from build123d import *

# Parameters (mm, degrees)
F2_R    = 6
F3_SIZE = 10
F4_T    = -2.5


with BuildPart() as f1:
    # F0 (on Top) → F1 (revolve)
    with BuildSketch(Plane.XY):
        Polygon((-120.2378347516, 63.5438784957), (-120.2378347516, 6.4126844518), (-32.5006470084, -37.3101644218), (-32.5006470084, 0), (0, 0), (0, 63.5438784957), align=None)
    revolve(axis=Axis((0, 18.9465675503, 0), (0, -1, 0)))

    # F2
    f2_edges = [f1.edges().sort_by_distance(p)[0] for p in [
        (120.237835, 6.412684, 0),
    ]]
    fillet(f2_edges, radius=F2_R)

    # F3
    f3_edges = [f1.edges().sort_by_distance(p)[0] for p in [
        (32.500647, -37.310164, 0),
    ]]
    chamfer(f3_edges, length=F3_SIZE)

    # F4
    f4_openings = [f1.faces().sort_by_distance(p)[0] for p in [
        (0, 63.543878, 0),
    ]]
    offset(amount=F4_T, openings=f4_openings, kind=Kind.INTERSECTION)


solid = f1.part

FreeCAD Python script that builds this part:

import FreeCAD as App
import Part
import Sketcher


def edges_at(feature, points):
    """Names of the edges that pass closest to the given points."""
    edges = feature.Shape.Edges
    near = lambda p: min(range(len(edges)), key=lambda i: edges[i].distToShape(Part.Vertex(*p))[0])
    return sorted({f"Edge{near(p) + 1}" for p in points})


def faces_at(feature, points):
    """Names of the faces that lie closest to the given points."""
    faces = feature.Shape.Faces
    near = lambda p: min(range(len(faces)), key=lambda i: faces[i].distToShape(Part.Vertex(*p))[0])
    return sorted({f"Face{near(p) + 1}" for p in points})

doc = App.newDocument("Part")
params = doc.addObject("Spreadsheet::Sheet", "Params")
for row, (alias, value) in enumerate([
    ("revolution_angle", "360 deg"),
    ("fillet_radius", "6 mm"),
    ("chamfer_size", "10 mm"),
    ("thickness_wall", "2.5 mm"),
], start=1):
    params.set(f"A{row}", alias)
    params.set(f"B{row}", "=" + value)
    params.setAlias(f"B{row}", alias)

body = doc.addObject("PartDesign::Body", "Body")

sketch1 = body.newObject("Sketcher::SketchObject", "Sketch")
sketch1.AttachmentSupport = (doc.getObject("XY_Plane"), [""])
sketch1.MapMode = "FlatFace"
sketch1.addGeometry([
    Part.LineSegment(App.Vector(-120, 64, 0), App.Vector(-120, 6, 0)),
    Part.LineSegment(App.Vector(-120, 6, 0), App.Vector(-33, -37, 0)),
    Part.LineSegment(App.Vector(-33, -37, 0), App.Vector(-33, 0, 0)),
    Part.LineSegment(App.Vector(-33, 0, 0), App.Vector(0, 0, 0)),
    Part.LineSegment(App.Vector(0, 0, 0), App.Vector(0, 64, 0)),
    Part.LineSegment(App.Vector(0, 64, 0), App.Vector(-120, 64, 0)),
], False)
sketch1.addConstraint([
    Sketcher.Constraint("Coincident", 0, 2, 1, 1),
    Sketcher.Constraint("Coincident", 1, 2, 2, 1),
    Sketcher.Constraint("Coincident", 2, 2, 3, 1),
    Sketcher.Constraint("Coincident", 3, 2, 4, 1),
    Sketcher.Constraint("Coincident", 4, 2, 5, 1),
    Sketcher.Constraint("Coincident", 5, 2, 0, 1),
    Sketcher.Constraint("Vertical", 0),
    Sketcher.Constraint("Vertical", 2),
    Sketcher.Constraint("Horizontal", 3),
    Sketcher.Constraint("Vertical", 4),
    Sketcher.Constraint("Horizontal", 5),
    Sketcher.Constraint("Coincident", 3, 2, -1, 1),
    Sketcher.Constraint("DistanceY", 4, 1, 4, 2, 63.543878),
    Sketcher.Constraint("DistanceX", 3, 1, 3, 2, 32.500647),
    Sketcher.Constraint("DistanceX", 5, 2, 5, 1, 120.237835),
    Sketcher.Constraint("DistanceY", 0, 2, 0, 1, 57.131194),
    Sketcher.Constraint("DistanceY", 2, 1, 2, 2, 37.310164),
])
revolution = body.newObject("PartDesign::Revolution", "Revolution")
revolution.Profile = sketch1
revolution.ReferenceAxis = (sketch1, ["V_Axis"])
revolution.setExpression("Angle", "Params.revolution_angle")
doc.recompute()

fillet = body.newObject("PartDesign::Fillet", "Fillet")
fillet.Base = (revolution, edges_at(revolution, [(120.238, 6.413, 0)]))
fillet.setExpression("Radius", "Params.fillet_radius")
doc.recompute()

chamfer = body.newObject("PartDesign::Chamfer", "Chamfer")
chamfer.Base = (fillet, edges_at(fillet, [(32.501, -37.31, 0)]))
chamfer.setExpression("Size", "Params.chamfer_size")
doc.recompute()

thickness = body.newObject("PartDesign::Thickness", "Thickness")
thickness.Base = (chamfer, faces_at(chamfer, [(0, 63.544, 0)]))
thickness.setExpression("Value", "Params.thickness_wall")
thickness.Reversed = True
thickness.Join = "Intersection"

doc.recompute()
